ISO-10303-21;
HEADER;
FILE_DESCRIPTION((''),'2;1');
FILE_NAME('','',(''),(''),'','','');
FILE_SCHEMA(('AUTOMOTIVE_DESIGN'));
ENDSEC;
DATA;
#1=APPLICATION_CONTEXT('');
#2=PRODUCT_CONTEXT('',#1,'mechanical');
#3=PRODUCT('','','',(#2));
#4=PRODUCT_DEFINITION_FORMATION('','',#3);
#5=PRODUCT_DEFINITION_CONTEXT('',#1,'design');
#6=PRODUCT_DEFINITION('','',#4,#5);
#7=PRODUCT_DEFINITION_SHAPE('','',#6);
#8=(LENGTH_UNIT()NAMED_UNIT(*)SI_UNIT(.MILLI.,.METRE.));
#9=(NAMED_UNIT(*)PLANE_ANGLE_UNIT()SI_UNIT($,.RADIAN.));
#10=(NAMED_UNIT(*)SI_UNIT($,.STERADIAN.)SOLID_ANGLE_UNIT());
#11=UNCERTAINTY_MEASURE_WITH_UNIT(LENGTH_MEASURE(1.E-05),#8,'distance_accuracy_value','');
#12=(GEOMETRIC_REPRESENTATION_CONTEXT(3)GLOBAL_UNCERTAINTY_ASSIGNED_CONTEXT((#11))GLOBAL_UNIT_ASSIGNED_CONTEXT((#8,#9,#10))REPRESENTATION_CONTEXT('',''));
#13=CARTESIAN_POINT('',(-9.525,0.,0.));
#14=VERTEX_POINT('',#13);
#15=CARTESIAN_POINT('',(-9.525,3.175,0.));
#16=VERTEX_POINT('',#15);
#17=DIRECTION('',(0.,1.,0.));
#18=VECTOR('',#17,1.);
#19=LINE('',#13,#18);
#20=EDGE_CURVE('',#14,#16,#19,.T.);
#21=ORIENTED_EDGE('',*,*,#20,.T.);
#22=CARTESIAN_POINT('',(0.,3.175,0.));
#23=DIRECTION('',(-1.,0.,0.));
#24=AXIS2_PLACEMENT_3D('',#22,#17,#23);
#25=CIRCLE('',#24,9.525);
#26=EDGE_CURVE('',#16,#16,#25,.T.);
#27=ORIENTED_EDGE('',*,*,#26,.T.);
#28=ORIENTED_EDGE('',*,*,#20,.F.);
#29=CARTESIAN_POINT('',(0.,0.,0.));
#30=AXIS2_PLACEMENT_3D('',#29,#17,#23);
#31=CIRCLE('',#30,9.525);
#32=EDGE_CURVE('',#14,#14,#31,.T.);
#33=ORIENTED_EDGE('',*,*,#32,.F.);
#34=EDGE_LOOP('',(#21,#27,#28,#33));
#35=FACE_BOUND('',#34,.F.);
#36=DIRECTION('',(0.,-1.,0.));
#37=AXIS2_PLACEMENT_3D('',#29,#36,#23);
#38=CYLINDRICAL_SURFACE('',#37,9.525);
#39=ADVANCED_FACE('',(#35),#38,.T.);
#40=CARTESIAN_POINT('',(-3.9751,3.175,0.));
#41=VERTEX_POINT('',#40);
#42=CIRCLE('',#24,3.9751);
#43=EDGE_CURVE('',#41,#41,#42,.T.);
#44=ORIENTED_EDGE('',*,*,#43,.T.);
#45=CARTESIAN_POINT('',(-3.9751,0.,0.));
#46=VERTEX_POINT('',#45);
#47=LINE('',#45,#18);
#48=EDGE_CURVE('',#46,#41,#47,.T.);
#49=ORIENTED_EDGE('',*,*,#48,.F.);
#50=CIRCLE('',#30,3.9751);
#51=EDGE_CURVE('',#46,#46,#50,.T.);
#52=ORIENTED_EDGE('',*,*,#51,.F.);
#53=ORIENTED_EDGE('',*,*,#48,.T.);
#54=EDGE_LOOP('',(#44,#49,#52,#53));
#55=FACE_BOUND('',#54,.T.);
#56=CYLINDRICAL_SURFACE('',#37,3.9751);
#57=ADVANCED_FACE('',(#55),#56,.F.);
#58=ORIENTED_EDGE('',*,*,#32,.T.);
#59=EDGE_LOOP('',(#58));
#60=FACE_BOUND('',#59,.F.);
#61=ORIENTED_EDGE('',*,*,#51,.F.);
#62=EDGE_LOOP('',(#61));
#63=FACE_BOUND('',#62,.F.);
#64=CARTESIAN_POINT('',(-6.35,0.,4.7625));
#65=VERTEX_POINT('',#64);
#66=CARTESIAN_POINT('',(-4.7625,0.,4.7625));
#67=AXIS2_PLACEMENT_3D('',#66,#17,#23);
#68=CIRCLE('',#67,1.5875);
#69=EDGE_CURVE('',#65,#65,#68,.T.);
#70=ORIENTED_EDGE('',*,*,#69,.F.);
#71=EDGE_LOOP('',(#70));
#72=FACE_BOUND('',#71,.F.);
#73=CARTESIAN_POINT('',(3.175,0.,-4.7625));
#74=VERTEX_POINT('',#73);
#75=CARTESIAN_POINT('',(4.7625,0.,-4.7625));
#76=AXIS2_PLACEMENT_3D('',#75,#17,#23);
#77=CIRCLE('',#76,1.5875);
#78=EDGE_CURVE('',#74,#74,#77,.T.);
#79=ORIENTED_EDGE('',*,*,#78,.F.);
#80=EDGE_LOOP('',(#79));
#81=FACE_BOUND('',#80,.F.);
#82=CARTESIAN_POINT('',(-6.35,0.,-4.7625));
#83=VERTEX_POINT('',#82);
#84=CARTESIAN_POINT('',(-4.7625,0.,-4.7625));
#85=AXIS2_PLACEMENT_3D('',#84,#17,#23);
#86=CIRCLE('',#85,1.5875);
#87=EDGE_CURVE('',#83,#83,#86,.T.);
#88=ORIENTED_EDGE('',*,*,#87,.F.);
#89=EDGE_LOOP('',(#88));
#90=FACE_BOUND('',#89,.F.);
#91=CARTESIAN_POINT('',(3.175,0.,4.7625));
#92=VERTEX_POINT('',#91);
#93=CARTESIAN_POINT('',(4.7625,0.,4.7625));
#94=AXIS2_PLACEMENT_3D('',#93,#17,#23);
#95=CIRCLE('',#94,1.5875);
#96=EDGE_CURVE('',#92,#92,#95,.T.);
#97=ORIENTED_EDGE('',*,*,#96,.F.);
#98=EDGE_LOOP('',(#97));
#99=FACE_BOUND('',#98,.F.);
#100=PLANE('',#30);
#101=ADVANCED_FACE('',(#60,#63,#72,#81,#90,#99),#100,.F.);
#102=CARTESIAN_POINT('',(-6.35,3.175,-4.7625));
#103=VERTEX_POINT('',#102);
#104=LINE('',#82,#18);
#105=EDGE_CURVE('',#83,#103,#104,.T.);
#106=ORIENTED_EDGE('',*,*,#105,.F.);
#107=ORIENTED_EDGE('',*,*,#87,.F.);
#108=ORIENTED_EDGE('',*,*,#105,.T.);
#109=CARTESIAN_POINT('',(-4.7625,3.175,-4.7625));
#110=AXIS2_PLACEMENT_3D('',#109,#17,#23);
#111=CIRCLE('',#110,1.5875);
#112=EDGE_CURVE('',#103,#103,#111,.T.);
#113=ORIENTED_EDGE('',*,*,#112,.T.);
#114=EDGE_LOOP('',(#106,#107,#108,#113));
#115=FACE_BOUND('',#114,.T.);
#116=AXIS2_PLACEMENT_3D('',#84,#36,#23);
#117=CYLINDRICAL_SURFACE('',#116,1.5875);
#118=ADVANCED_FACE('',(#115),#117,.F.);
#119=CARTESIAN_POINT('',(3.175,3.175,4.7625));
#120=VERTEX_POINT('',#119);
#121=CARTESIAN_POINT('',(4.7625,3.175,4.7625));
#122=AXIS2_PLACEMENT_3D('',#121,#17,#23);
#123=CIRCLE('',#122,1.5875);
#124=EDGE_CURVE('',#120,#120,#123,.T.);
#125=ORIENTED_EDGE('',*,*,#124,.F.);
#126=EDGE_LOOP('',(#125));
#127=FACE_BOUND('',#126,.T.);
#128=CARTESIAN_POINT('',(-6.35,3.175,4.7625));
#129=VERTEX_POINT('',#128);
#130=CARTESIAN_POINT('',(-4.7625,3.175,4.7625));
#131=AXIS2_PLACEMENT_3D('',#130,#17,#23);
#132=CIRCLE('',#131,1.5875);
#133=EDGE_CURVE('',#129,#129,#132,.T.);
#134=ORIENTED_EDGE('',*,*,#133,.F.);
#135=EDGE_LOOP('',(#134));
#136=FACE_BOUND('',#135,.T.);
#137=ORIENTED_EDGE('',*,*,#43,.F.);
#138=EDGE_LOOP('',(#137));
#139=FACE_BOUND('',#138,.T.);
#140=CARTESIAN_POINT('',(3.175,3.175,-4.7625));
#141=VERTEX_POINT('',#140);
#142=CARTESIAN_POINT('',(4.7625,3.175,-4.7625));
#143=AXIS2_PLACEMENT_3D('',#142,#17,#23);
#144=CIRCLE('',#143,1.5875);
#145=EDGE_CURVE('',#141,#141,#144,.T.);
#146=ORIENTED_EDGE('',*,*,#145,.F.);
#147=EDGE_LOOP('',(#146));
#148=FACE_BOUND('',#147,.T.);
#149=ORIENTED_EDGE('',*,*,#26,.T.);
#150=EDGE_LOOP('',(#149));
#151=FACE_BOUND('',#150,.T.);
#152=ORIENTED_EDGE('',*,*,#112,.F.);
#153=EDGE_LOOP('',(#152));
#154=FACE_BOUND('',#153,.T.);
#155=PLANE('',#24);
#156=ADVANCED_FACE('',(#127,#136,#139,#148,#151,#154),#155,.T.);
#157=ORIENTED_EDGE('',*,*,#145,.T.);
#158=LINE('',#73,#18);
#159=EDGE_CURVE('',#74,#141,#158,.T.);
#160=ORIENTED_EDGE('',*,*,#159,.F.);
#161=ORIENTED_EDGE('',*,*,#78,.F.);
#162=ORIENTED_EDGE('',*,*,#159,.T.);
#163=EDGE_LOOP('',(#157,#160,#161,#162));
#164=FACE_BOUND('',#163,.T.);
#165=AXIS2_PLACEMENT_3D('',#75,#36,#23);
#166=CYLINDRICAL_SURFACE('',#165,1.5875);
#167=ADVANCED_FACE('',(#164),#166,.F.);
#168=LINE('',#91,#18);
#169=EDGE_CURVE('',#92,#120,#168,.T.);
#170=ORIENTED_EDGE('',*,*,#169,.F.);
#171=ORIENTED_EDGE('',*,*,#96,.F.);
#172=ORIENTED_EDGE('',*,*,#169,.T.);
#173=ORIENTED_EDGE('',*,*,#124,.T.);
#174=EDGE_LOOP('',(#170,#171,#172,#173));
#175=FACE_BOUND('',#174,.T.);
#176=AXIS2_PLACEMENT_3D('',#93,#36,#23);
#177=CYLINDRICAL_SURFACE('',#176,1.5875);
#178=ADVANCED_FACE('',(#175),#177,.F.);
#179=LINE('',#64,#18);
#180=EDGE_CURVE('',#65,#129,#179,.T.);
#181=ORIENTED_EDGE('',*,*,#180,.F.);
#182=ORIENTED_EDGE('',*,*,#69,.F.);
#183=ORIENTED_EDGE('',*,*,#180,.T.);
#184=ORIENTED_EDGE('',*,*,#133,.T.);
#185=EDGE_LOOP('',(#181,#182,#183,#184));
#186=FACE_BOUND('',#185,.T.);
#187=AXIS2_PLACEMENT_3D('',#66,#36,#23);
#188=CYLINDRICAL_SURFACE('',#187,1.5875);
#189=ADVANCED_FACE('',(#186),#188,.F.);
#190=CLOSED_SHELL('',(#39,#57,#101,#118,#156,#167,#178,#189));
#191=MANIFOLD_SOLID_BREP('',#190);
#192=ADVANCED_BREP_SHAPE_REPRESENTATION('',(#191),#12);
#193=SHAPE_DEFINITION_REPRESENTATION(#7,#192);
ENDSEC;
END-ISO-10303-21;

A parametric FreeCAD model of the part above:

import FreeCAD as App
import Part
import Sketcher
Q = App.Units.Quantity

doc = App.newDocument("Part")
params = doc.addObject("Spreadsheet::Sheet", "Params")
for row, (alias, value) in enumerate([
    ("sketch1_diameter", "0.75 in"),
    ("sketch1_diameter2", "0.125 in"),
    ("sketch1_diameter3", "0.313 in"),
    ("pad1_length", "0.125 in"),
], start=1):
    params.set(f"A{row}", alias)
    params.set(f"B{row}", "=" + value)
    params.setAlias(f"B{row}", alias)

body = doc.addObject("PartDesign::Body", "Body")

# Sketch on XZ plane
sketch1 = body.newObject("Sketcher::SketchObject", "Sketch")
sketch1.AttachmentSupport = (doc.getObject("XZ_Plane"), [""])
sketch1.MapMode = "FlatFace"
sketch1.addGeometry([
    Part.Circle(App.Vector(0, 0, 0), App.Vector(0, 0, 1), 9.5),  # 0
    Part.Circle(App.Vector(4.8, -4.8, 0), App.Vector(0, 0, 1), 1.6),  # 1
    Part.Circle(App.Vector(-4.8, -4.8, 0), App.Vector(0, 0, 1), 1.6),  # 2
    Part.Circle(App.Vector(4.8, 4.8, 0), App.Vector(0, 0, 1), 1.6),  # 3
    Part.Circle(App.Vector(0, 0, 0), App.Vector(0, 0, 1), 4),  # 4
    Part.Circle(App.Vector(-4.8, 4.8, 0), App.Vector(0, 0, 1), 1.6),  # 5
], False)
sketch1.addConstraint([
    Sketcher.Constraint("Coincident", 0, 3, -1, 1),
    Sketcher.Constraint("Coincident", 4, 3, -1, 1),
    Sketcher.Constraint("Equal", 1, 2),
    Sketcher.Constraint("Equal", 2, 3),
    Sketcher.Constraint("Equal", 3, 5),
    Sketcher.Constraint("Symmetric", 2, 3, 3, 3, -1, 1),
    Sketcher.Constraint("Symmetric", 1, 3, 5, 3, -1, 1),
    Sketcher.Constraint("Symmetric", 1, 3, 2, 3, -2),
    Sketcher.Constraint("Diameter", 0, Q("0.75 in")),
    Sketcher.Constraint("Diameter", 1, Q("0.125 in")),
    Sketcher.Constraint("Diameter", 4, Q("0.313 in")),
    Sketcher.Constraint("DistanceX", -1, 1, 1, 3, Q("0.1875 in")),
    Sketcher.Constraint("DistanceY", 1, 3, -1, 1, Q("0.1875 in")),
])
sketch1.setExpression("Constraints[8]", "Params.sketch1_diameter")
sketch1.setExpression("Constraints[9]", "Params.sketch1_diameter2")
sketch1.setExpression("Constraints[10]", "Params.sketch1_diameter3")
pad1 = body.newObject("PartDesign::Pad", "Pad")
pad1.Profile = sketch1
pad1.setExpression("Length", "Params.pad1_length")
pad1.Reversed = True

doc.recompute()
